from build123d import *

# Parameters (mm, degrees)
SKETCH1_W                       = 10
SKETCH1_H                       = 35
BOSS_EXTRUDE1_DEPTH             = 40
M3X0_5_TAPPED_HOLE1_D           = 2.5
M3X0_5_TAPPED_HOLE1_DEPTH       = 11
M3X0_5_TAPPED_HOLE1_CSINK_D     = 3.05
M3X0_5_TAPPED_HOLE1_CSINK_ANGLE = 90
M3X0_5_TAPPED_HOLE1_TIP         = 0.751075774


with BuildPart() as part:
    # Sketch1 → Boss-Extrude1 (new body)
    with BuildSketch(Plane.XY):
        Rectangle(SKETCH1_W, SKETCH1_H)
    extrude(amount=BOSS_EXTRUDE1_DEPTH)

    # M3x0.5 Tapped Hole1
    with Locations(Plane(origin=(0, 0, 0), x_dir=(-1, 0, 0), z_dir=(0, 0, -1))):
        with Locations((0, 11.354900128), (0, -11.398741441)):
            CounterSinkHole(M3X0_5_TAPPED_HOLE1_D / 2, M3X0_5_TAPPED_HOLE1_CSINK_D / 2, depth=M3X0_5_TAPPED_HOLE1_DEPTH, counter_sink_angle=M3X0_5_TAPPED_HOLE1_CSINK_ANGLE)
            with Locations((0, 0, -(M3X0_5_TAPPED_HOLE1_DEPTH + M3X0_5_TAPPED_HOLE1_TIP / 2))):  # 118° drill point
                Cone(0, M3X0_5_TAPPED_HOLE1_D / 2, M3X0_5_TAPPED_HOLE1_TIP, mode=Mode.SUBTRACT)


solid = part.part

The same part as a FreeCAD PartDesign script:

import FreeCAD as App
import Part
import Sketcher

V = App.Vector


def add_polygon(sketch, points):
    """Adds a closed chain of lines whose ends are joined by coincident constraints."""
    first, n = sketch.GeometryCount, len(points)
    for a, b in zip(points, points[1:] + points[:1]):
        sketch.addGeometry(Part.LineSegment(App.Vector(*a, 0), App.Vector(*b, 0)), False)
    for i in range(n):
        sketch.addConstraint(Sketcher.Constraint("Coincident", first + i, 2, first + (i + 1) % n, 1))

doc = App.newDocument("Part")
body = doc.addObject("PartDesign::Body", "Body")

sketch1 = body.newObject("Sketcher::SketchObject", "Sketch")
sketch1.AttachmentSupport = (doc.getObject("XY_Plane"), [""])
sketch1.MapMode = "FlatFace"
add_polygon(sketch1, [(-5, 17.5), (-5, -17.5), (5, -17.5), (5, 17.5)])
sketch1.addConstraint(Sketcher.Constraint("Vertical", 0))
sketch1.addConstraint(Sketcher.Constraint("Horizontal", 1))
sketch1.addConstraint(Sketcher.Constraint("Vertical", 2))
sketch1.addConstraint(Sketcher.Constraint("Horizontal", 3))
sketch1.addConstraint(Sketcher.Constraint("Symmetric", 0, 2, 2, 2, -1, 1))
sketch1.addConstraint(Sketcher.Constraint("DistanceX", 1, 1, 1, 2, 10.0))
sketch1.addConstraint(Sketcher.Constraint("DistanceY", 0, 2, 0, 1, 35.0))
pad1 = body.newObject("PartDesign::Pad", "Pad")
pad1.Profile = sketch1
pad1.Length = 40

sketch2 = body.newObject("Sketcher::SketchObject", "Sketch001")
sketch2.AttachmentSupport = (doc.getObject("XY_Plane"), [""])
sketch2.MapMode = "FlatFace"
sketch2.addGeometry(Part.Circle(V(0, 11.3549, 0), V(0, 0, 1), 1.25), False)
sketch2.addGeometry(Part.Circle(V(0, -11.398741, 0), V(0, 0, 1), 1.25), False)
sketch2.addConstraint(Sketcher.Constraint("Equal", 0, 1))
sketch2.addConstraint(Sketcher.Constraint("PointOnObject", 0, 3, -2))
sketch2.addConstraint(Sketcher.Constraint("PointOnObject", 1, 3, -2))
sketch2.addConstraint(Sketcher.Constraint("Diameter", 0, 2.5))
sketch2.addConstraint(Sketcher.Constraint("DistanceY", -1, 1, 0, 3, 11.3549))
sketch2.addConstraint(Sketcher.Constraint("DistanceY", 1, 3, -1, 1, 11.398741))
doc.recompute()
hole = body.newObject("PartDesign::Hole", "Hole")
hole.Profile = sketch2
hole.ThreadType = "None"
hole.Diameter = 2.5
hole.DepthType = "Dimension"
hole.Depth = 11
hole.DrillPoint = "Angled"
hole.DrillPointAngle = 118
hole.HoleCutType = "Countersink"
hole.HoleCutDiameter = 3.05
hole.HoleCutCountersinkAngle = 90
hole.Reversed = True

doc.recompute()
